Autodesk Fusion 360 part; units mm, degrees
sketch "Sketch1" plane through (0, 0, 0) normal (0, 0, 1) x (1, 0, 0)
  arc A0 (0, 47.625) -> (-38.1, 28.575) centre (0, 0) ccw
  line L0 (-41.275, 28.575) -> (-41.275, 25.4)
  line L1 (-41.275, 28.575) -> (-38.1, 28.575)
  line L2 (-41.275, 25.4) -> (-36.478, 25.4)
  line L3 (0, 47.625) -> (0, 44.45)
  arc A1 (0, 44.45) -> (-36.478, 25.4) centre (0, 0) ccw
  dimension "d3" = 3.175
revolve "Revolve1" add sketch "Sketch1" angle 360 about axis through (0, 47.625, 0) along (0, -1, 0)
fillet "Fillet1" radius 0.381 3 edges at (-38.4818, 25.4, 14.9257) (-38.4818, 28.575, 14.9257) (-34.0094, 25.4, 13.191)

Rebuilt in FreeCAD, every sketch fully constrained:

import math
import FreeCAD as App
import Part
import Sketcher

V = App.Vector
Q = App.Units.Quantity


def edges_at(feature, points):
    """Names of the edges that pass closest to the given points."""
    edges = feature.Shape.Edges
    near = lambda p: min(range(len(edges)), key=lambda i: edges[i].distToShape(Part.Vertex(*p))[0])
    return sorted({f"Edge{near(p) + 1}" for p in points})

doc = App.newDocument("Part")
body = doc.addObject("PartDesign::Body", "Body")

sketch1 = body.newObject("Sketcher::SketchObject", "Sketch")
sketch1.AttachmentSupport = (doc.getObject("XY_Plane"), [""])
sketch1.MapMode = "FlatFace"
sketch1.addGeometry(Part.LineSegment(V(0, 44.5, 0), V(0, 47.6, 0)), False)
sketch1.addGeometry(Part.ArcOfCircle(Part.Circle(V(0, 0, 0), V(0, 0, 1), 47.6), math.radians(90), math.radians(143)), False)
sketch1.addGeometry(Part.LineSegment(V(-38.1, 28.6, 0), V(-41.3, 28.6, 0)), False)
sketch1.addGeometry(Part.LineSegment(V(-41.3, 28.6, 0), V(-41.3, 25.4, 0)), False)
sketch1.addGeometry(Part.LineSegment(V(-41.3, 25.4, 0), V(-36.5, 25.4, 0)), False)
sketch1.addGeometry(Part.ArcOfCircle(Part.Circle(V(0, 0, 0), V(0, 0, 1), 44.5), math.radians(90), math.radians(145)), False)
sketch1.addConstraint(Sketcher.Constraint("Coincident", 0, 2, 1, 1))
sketch1.addConstraint(Sketcher.Constraint("Coincident", 1, 2, 2, 1))
sketch1.addConstraint(Sketcher.Constraint("Coincident", 2, 2, 3, 1))
sketch1.addConstraint(Sketcher.Constraint("Coincident", 3, 2, 4, 1))
sketch1.addConstraint(Sketcher.Constraint("Coincident", 4, 2, 5, 2))
sketch1.addConstraint(Sketcher.Constraint("Coincident", 5, 1, 0, 1))
sketch1.addConstraint(Sketcher.Constraint("Vertical", 0))
sketch1.addConstraint(Sketcher.Constraint("Horizontal", 2))
sketch1.addConstraint(Sketcher.Constraint("Vertical", 3))
sketch1.addConstraint(Sketcher.Constraint("Horizontal", 4))
sketch1.addConstraint(Sketcher.Constraint("Coincident", 1, 3, -1, 1))
sketch1.addConstraint(Sketcher.Constraint("Coincident", 5, 3, -1, 1))
sketch1.addConstraint(Sketcher.Constraint("PointOnObject", 0, 2, -2))
sketch1.addConstraint(Sketcher.Constraint("Equal", 2, 0))
sketch1.addConstraint(Sketcher.Constraint("Equal", 0, 3))
sketch1.addConstraint(Sketcher.Constraint("DistanceX", 2, 2, 2, 1, Q("0.125 in")))
sketch1.addConstraint(Sketcher.Constraint("Radius", 5, Q("1.75 in")))
sketch1.addConstraint(Sketcher.Constraint("DistanceY", -1, 1, 3, 2, Q("1 in")))
revolution = body.newObject("PartDesign::Revolution", "Revolution")
revolution.Profile = sketch1
revolution.ReferenceAxis = (sketch1, ["V_Axis"])
revolution.Angle = 360
doc.recompute()

fillet = body.newObject("PartDesign::Fillet", "Fillet")
fillet.Base = (revolution, edges_at(revolution, [(-38.482, 25.4, 14.926), (-38.482, 28.575, 14.926), (-34.009, 25.4, 13.191)]))
fillet.Radius = Q("0.015 in")

doc.recompute()
